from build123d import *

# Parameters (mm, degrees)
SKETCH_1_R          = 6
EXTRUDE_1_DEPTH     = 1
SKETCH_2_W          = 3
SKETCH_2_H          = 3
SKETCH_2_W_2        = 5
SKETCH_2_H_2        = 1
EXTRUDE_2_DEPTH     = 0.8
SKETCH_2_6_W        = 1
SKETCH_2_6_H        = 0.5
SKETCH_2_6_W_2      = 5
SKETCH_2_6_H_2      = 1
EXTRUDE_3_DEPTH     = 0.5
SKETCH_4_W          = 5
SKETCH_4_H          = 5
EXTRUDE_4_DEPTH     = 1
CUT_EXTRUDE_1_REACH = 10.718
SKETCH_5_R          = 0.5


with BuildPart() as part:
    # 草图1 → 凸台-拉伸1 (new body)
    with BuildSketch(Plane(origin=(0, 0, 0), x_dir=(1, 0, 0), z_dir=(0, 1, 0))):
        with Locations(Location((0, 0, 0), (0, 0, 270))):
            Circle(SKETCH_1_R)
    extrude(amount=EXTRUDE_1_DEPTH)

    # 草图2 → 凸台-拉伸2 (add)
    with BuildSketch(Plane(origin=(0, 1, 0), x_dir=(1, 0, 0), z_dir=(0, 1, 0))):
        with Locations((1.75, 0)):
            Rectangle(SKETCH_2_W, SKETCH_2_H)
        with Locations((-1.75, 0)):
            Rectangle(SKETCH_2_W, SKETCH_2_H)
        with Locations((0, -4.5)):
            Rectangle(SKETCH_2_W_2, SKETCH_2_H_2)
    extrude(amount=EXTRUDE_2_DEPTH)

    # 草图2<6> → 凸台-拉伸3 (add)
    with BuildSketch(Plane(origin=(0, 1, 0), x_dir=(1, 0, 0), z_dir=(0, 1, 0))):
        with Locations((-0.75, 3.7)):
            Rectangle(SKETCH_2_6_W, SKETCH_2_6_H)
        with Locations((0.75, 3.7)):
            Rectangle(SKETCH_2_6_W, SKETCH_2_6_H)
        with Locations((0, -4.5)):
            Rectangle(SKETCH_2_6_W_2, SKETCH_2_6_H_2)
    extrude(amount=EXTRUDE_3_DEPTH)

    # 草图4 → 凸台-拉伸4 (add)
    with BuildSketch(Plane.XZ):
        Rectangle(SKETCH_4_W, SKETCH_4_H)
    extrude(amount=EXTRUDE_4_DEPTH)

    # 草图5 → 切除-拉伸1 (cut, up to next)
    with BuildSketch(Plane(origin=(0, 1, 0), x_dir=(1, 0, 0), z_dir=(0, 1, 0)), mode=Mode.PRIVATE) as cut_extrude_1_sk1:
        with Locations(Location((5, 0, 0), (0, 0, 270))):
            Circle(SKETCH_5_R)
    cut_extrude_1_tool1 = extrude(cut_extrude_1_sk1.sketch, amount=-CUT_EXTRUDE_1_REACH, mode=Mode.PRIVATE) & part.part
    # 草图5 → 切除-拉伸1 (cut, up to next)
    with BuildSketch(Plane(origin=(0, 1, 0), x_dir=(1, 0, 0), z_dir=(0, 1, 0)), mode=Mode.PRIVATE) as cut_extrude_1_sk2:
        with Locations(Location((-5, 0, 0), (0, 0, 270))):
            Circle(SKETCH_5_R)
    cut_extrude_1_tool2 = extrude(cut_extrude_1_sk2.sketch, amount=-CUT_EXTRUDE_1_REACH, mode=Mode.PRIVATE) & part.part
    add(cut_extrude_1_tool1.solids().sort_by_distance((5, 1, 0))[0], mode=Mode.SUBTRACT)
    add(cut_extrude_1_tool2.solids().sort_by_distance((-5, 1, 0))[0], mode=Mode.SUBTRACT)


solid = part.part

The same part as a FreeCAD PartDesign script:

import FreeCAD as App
import Part
import Sketcher

V = App.Vector
Q = App.Units.Quantity

doc = App.newDocument("Part")
params = doc.addObject("Spreadsheet::Sheet", "Params")
for row, (alias, value) in enumerate([
    ("sketch1_diameter", "12 mm"),
    ("pad1_length", "1 mm"),
    ("sketch2_width", "3 mm"),
    ("sketch2_width2", "5 mm"),
    ("sketch2_height", "1 mm"),
    ("pad2_length", "0.8 mm"),
    ("sketch3_width", "1 mm"),
    ("sketch3_width2", "5 mm"),
    ("sketch3_height", "0.5 mm"),
    ("pad3_length", "0.5 mm"),
    ("sketch4_width", "5 mm"),
    ("pad4_length", "1 mm"),
    ("sketch5_diameter", "1 mm"),
    ("sketch6_diameter", "1 mm"),
], start=1):
    params.set(f"A{row}", alias)
    params.set(f"B{row}", "=" + value)
    params.setAlias(f"B{row}", alias)

body = doc.addObject("PartDesign::Body", "Body")

sketch1 = body.newObject("Sketcher::SketchObject", "Sketch")
sketch1.AttachmentSupport = (doc.getObject("XZ_Plane"), [""])
sketch1.MapMode = "FlatFace"
sketch1.addGeometry(Part.Circle(V(0, 0, 0), V(0, 0, 1), 6), False)
sketch1.addConstraint([
    Sketcher.Constraint("Coincident", 0, 3, -1, 1),
    Sketcher.Constraint("Diameter", 0, Q("12 mm")),
])
sketch1.setExpression("Constraints[1]", "Params.sketch1_diameter")
pad1 = body.newObject("PartDesign::Pad", "Pad")
pad1.Profile = sketch1
pad1.setExpression("Length", "Params.pad1_length")
pad1.Reversed = True

sketch2 = body.newObject("Sketcher::SketchObject", "Sketch001")
sketch2.AttachmentSupport = (doc.getObject("XZ_Plane"), [""])
sketch2.MapMode = "FlatFace"
sketch2.AttachmentOffset = App.Placement(V(0, 0, -1), App.Rotation())
sketch2.addGeometry([
    Part.LineSegment(V(0.2, -1.5, 0), V(0.2, 1.5, 0)),
    Part.LineSegment(V(0.2, 1.5, 0), V(3.2, 1.5, 0)),
    Part.LineSegment(V(3.2, 1.5, 0), V(3.2, -1.5, 0)),
    Part.LineSegment(V(3.2, -1.5, 0), V(0.2, -1.5, 0)),
    Part.LineSegment(V(-3.2, -1.5, 0), V(-3.2, 1.5, 0)),
    Part.LineSegment(V(-3.2, 1.5, 0), V(-0.2, 1.5, 0)),
    Part.LineSegment(V(-0.2, 1.5, 0), V(-0.2, -1.5, 0)),
    Part.LineSegment(V(-0.2, -1.5, 0), V(-3.2, -1.5, 0)),
    Part.LineSegment(V(-2.5, 4, 0), V(-2.5, 5, 0)),
    Part.LineSegment(V(-2.5, 5, 0), V(2.5, 5, 0)),
    Part.LineSegment(V(2.5, 5, 0), V(2.5, 4, 0)),
    Part.LineSegment(V(2.5, 4, 0), V(-2.5, 4, 0)),
], False)
sketch2.addConstraint([
    Sketcher.Constraint("Coincident", 0, 2, 1, 1),
    Sketcher.Constraint("Coincident", 1, 2, 2, 1),
    Sketcher.Constraint("Coincident", 2, 2, 3, 1),
    Sketcher.Constraint("Coincident", 3, 2, 0, 1),
    Sketcher.Constraint("Coincident", 4, 2, 5, 1),
    Sketcher.Constraint("Coincident", 5, 2, 6, 1),
    Sketcher.Constraint("Coincident", 6, 2, 7, 1),
    Sketcher.Constraint("Coincident", 7, 2, 4, 1),
    Sketcher.Constraint("Coincident", 8, 2, 9, 1),
    Sketcher.Constraint("Coincident", 9, 2, 10, 1),
    Sketcher.Constraint("Coincident", 10, 2, 11, 1),
    Sketcher.Constraint("Coincident", 11, 2, 8, 1),
    Sketcher.Constraint("Vertical", 0),
    Sketcher.Constraint("Horizontal", 1),
    Sketcher.Constraint("Vertical", 2),
    Sketcher.Constraint("Horizontal", 3),
    Sketcher.Constraint("Vertical", 4),
    Sketcher.Constraint("Horizontal", 5),
    Sketcher.Constraint("Vertical", 6),
    Sketcher.Constraint("Horizontal", 7),
    Sketcher.Constraint("Vertical", 8),
    Sketcher.Constraint("Horizontal", 9),
    Sketcher.Constraint("Vertical", 10),
    Sketcher.Constraint("Horizontal", 11),
    Sketcher.Constraint("Symmetric", 2, 2, 4, 2, -1, 1),
    Sketcher.Constraint("Symmetric", 0, 2, 6, 2, -1, 1),
    Sketcher.Constraint("Horizontal", 1, 2, 4, 2),
    Sketcher.Constraint("Equal", 7, 0),
    Sketcher.Constraint("DistanceX", 1, 1, 1, 2, Q("3 mm")),
    Sketcher.Constraint("DistanceX", 9, 1, 9, 2, Q("5 mm")),
    Sketcher.Constraint("DistanceY", 8, 1, 8, 2, Q("1 mm")),
    Sketcher.Constraint("DistanceY", -1, 1, 8, 2, Q("5 mm")),
    Sketcher.Constraint("DistanceX", 8, 2, -1, 1, Q("2.5 mm")),
    Sketcher.Constraint("DistanceX", 4, 2, 0, 2, Q("3.5 mm")),
])
sketch2.setExpression("Constraints[28]", "Params.sketch2_width")
sketch2.setExpression("Constraints[29]", "Params.sketch2_width2")
sketch2.setExpression("Constraints[30]", "Params.sketch2_height")
pad2 = body.newObject("PartDesign::Pad", "Pad001")
pad2.Profile = sketch2
pad2.setExpression("Length", "Params.pad2_length")
pad2.Reversed = True

sketch3 = body.newObject("Sketcher::SketchObject", "Sketch002")
sketch3.AttachmentSupport = (doc.getObject("XZ_Plane"), [""])
sketch3.MapMode = "FlatFace"
sketch3.AttachmentOffset = App.Placement(V(0, 0, -1), App.Rotation())
sketch3.addGeometry([
    Part.LineSegment(V(-1.2, -4, 0), V(-1.2, -3.5, 0)),
    Part.LineSegment(V(-1.2, -3.5, 0), V(-0.2, -3.5, 0)),
    Part.LineSegment(V(-0.2, -3.5, 0), V(-0.2, -4, 0)),
    Part.LineSegment(V(-0.2, -4, 0), V(-1.2, -4, 0)),
    Part.LineSegment(V(0.2, -4, 0), V(0.2, -3.5, 0)),
    Part.LineSegment(V(0.2, -3.5, 0), V(1.2, -3.5, 0)),
    Part.LineSegment(V(1.2, -3.5, 0), V(1.2, -4, 0)),
    Part.LineSegment(V(1.2, -4, 0), V(0.2, -4, 0)),
    Part.LineSegment(V(-2.5, 4, 0), V(-2.5, 5, 0)),
    Part.LineSegment(V(-2.5, 5, 0), V(2.5, 5, 0)),
    Part.LineSegment(V(2.5, 5, 0), V(2.5, 4, 0)),
    Part.LineSegment(V(2.5, 4, 0), V(-2.5, 4, 0)),
], False)
sketch3.addConstraint([
    Sketcher.Constraint("Coincident", 0, 2, 1, 1),
    Sketcher.Constraint("Coincident", 1, 2, 2, 1),
    Sketcher.Constraint("Coincident", 2, 2, 3, 1),
    Sketcher.Constraint("Coincident", 3, 2, 0, 1),
    Sketcher.Constraint("Coincident", 4, 2, 5, 1),
    Sketcher.Constraint("Coincident", 5, 2, 6, 1),
    Sketcher.Constraint("Coincident", 6, 2, 7, 1),
    Sketcher.Constraint("Coincident", 7, 2, 4, 1),
    Sketcher.Constraint("Coincident", 8, 2, 9, 1),
    Sketcher.Constraint("Coincident", 9, 2, 10, 1),
    Sketcher.Constraint("Coincident", 10, 2, 11, 1),
    Sketcher.Constraint("Coincident", 11, 2, 8, 1),
    Sketcher.Constraint("Vertical", 0),
    Sketcher.Constraint("Horizontal", 1),
    Sketcher.Constraint("Vertical", 2),
    Sketcher.Constraint("Horizontal", 3),
    Sketcher.Constraint("Vertical", 4),
    Sketcher.Constraint("Horizontal", 5),
    Sketcher.Constraint("Vertical", 6),
    Sketcher.Constraint("Horizontal", 7),
    Sketcher.Constraint("Vertical", 8),
    Sketcher.Constraint("Horizontal", 9),
    Sketcher.Constraint("Vertical", 10),
    Sketcher.Constraint("Horizontal", 11),
    Sketcher.Constraint("Symmetric", 1, 2, 4, 2, -2),
    Sketcher.Constraint("Symmetric", 3, 2, 6, 2, -2),
    Sketcher.Constraint("Equal", 7, 8),
    Sketcher.Constraint("DistanceX", 1, 1, 1, 2, Q("1 mm")),
    Sketcher.Constraint("DistanceX", 9, 1, 9, 2, Q("5 mm")),
    Sketcher.Constraint("DistanceY", 0, 1, 0, 2, Q("0.5 mm")),
    Sketcher.Constraint("DistanceY", -1, 1, 8, 2, Q("5 mm")),
    Sketcher.Constraint("DistanceX", 8, 2, -1, 1, Q("2.5 mm")),
    Sketcher.Constraint("DistanceX", 1, 2, 4, 2, Q("0.5 mm")),
    Sketcher.Constraint("DistanceY", 0, 2, -1, 1, Q("3.45 mm")),
])
sketch3.setExpression("Constraints[27]", "Params.sketch3_width")
sketch3.setExpression("Constraints[28]", "Params.sketch3_width2")
sketch3.setExpression("Constraints[29]", "Params.sketch3_height")
pad3 = body.newObject("PartDesign::Pad", "Pad002")
pad3.Profile = sketch3
pad3.setExpression("Length", "Params.pad3_length")
pad3.Reversed = True

sketch4 = body.newObject("Sketcher::SketchObject", "Sketch003")
sketch4.AttachmentSupport = (doc.getObject("XZ_Plane"), [""])
sketch4.MapMode = "FlatFace"
sketch4.addGeometry([
    Part.LineSegment(V(-2, 2, 0), V(-2, -2, 0)),
    Part.LineSegment(V(-2, -2, 0), V(2, -2, 0)),
    Part.LineSegment(V(2, -2, 0), V(2, 2, 0)),
    Part.LineSegment(V(2, 2, 0), V(-2, 2, 0)),
], False)
sketch4.addConstraint([
    Sketcher.Constraint("Coincident", 0, 2, 1, 1),
    Sketcher.Constraint("Coincident", 1, 2, 2, 1),
    Sketcher.Constraint("Coincident", 2, 2, 3, 1),
    Sketcher.Constraint("Coincident", 3, 2, 0, 1),
    Sketcher.Constraint("Vertical", 0),
    Sketcher.Constraint("Horizontal", 1),
    Sketcher.Constraint("Vertical", 2),
    Sketcher.Constraint("Horizontal", 3),
    Sketcher.Constraint("Symmetric", 0, 2, 2, 2, -1, 1),
    Sketcher.Constraint("Equal", 3, 0),
    Sketcher.Constraint("DistanceX", 1, 1, 1, 2, Q("5 mm")),
])
sketch4.setExpression("Constraints[10]", "Params.sketch4_width")
pad4 = body.newObject("PartDesign::Pad", "Pad003")
pad4.Profile = sketch4
pad4.setExpression("Length", "Params.pad4_length")

sketch5 = body.newObject("Sketcher::SketchObject", "Sketch004")
sketch5.AttachmentSupport = (doc.getObject("XZ_Plane"), [""])
sketch5.MapMode = "FlatFace"
sketch5.AttachmentOffset = App.Placement(V(0, 0, -1), App.Rotation())
sketch5.addGeometry(Part.Circle(V(5, 0, 0), V(0, 0, 1), 0.5), False)
sketch5.addConstraint([
    Sketcher.Constraint("PointOnObject", 0, 3, -1),
    Sketcher.Constraint("Diameter", 0, Q("1 mm")),
    Sketcher.Constraint("DistanceX", -1, 1, 0, 3, Q("5 mm")),
])
sketch5.setExpression("Constraints[1]", "Params.sketch5_diameter")
pocket1 = body.newObject("PartDesign::Pocket", "Pocket")
pocket1.Profile = sketch5
pocket1.Type = "UpToFirst"
pocket1.Reversed = True

sketch6 = body.newObject("Sketcher::SketchObject", "Sketch005")
sketch6.AttachmentSupport = (doc.getObject("XZ_Plane"), [""])
sketch6.MapMode = "FlatFace"
sketch6.AttachmentOffset = App.Placement(V(0, 0, -1), App.Rotation())
sketch6.addGeometry(Part.Circle(V(-5, 0, 0), V(0, 0, 1), 0.5), False)
sketch6.addConstraint([
    Sketcher.Constraint("PointOnObject", 0, 3, -1),
    Sketcher.Constraint("Diameter", 0, Q("1 mm")),
    Sketcher.Constraint("DistanceX", 0, 3, -1, 1, Q("5 mm")),
])
sketch6.setExpression("Constraints[1]", "Params.sketch6_diameter")
pocket2 = body.newObject("PartDesign::Pocket", "Pocket001")
pocket2.Profile = sketch6
pocket2.Type = "UpToFirst"
pocket2.Reversed = True

doc.recompute()
